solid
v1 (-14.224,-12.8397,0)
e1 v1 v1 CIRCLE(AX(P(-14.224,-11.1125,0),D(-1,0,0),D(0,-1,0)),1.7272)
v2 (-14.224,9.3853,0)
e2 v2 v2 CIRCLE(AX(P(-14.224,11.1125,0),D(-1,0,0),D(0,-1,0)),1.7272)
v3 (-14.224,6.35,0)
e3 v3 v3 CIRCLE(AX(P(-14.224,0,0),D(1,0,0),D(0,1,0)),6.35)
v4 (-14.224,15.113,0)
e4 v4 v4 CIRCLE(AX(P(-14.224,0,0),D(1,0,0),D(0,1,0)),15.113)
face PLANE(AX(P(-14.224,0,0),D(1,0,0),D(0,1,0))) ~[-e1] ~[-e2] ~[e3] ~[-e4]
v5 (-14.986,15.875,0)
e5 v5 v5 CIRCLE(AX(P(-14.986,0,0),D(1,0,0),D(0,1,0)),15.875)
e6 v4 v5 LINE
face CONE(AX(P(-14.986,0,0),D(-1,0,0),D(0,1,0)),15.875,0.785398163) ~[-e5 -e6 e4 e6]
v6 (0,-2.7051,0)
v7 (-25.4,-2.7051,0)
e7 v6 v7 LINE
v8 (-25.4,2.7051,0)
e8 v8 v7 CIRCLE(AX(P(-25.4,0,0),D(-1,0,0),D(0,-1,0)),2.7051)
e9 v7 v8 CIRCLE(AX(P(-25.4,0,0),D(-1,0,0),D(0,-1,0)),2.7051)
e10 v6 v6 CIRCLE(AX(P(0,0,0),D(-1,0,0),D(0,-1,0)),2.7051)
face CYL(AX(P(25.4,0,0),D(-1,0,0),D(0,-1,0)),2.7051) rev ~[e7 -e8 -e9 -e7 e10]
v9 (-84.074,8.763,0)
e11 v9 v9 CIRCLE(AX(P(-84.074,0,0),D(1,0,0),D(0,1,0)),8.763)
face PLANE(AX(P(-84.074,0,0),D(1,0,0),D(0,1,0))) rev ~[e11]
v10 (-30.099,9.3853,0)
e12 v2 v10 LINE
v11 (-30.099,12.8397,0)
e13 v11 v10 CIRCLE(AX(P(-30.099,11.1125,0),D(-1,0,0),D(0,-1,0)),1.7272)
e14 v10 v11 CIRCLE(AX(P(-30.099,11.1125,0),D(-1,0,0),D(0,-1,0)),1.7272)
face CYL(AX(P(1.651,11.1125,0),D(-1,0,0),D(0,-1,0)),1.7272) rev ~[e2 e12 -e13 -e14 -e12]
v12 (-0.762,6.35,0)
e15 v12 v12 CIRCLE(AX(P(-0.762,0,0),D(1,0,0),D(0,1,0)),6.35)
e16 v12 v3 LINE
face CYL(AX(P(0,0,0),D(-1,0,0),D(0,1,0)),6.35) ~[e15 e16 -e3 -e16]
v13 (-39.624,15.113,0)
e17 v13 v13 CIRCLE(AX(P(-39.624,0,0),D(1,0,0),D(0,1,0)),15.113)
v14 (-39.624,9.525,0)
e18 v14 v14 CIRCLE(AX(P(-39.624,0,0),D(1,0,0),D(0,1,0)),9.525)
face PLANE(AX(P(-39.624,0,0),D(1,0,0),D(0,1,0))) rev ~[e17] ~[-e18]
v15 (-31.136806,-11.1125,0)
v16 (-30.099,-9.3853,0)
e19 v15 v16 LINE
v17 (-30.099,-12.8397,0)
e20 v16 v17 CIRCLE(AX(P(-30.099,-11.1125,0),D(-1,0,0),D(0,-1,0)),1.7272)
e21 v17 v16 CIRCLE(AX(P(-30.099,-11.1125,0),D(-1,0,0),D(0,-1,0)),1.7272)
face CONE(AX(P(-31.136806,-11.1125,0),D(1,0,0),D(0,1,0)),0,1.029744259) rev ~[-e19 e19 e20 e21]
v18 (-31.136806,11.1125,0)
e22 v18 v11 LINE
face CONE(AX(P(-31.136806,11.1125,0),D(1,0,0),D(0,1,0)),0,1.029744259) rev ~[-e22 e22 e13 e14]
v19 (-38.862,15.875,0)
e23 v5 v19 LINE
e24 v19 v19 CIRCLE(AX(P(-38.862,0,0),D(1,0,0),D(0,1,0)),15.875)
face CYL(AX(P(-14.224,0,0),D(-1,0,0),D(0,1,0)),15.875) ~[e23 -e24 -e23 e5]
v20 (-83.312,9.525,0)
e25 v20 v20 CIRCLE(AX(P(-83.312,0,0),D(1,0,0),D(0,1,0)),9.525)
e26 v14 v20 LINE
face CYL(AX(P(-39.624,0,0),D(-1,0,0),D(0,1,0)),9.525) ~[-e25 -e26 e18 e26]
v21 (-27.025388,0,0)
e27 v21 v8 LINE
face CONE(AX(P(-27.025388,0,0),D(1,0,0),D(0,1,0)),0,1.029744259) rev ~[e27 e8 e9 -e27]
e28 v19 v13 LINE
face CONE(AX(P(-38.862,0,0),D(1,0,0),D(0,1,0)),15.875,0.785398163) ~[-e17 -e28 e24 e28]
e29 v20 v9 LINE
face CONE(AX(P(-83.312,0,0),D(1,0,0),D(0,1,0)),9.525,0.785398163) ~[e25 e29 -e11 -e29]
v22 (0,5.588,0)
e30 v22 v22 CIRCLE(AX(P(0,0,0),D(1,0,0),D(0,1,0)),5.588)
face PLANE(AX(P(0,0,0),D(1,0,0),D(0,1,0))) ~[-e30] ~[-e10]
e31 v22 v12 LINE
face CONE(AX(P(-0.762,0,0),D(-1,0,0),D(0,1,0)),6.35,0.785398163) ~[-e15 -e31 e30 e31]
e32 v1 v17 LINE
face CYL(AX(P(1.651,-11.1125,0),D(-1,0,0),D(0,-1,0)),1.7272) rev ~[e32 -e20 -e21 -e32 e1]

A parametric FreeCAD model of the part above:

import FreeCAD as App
import Part
import Sketcher

V = App.Vector
Q = App.Units.Quantity


def edges_at(feature, points):
    """Names of the edges that pass closest to the given points."""
    edges = feature.Shape.Edges
    near = lambda p: min(range(len(edges)), key=lambda i: edges[i].distToShape(Part.Vertex(*p))[0])
    return sorted({f"Edge{near(p) + 1}" for p in points})

doc = App.newDocument("Part")
body = doc.addObject("PartDesign::Body", "Body")

sketch1 = body.newObject("Sketcher::SketchObject", "Sketch")
sketch1.AttachmentSupport = (doc.getObject("XY_Plane"), [""])
sketch1.MapMode = "FlatFace"
sketch1.addGeometry([
    Part.LineSegment(V(-84, 0, 0), V(0, 0, 0)),
    Part.LineSegment(V(0, 0, 0), V(0, 6, 0)),
    Part.LineSegment(V(0, 6, 0), V(-14, 6, 0)),
    Part.LineSegment(V(-14, 6, 0), V(-14, 16, 0)),
    Part.LineSegment(V(-14, 16, 0), V(-40, 16, 0)),
    Part.LineSegment(V(-40, 16, 0), V(-40, 10, 0)),
    Part.LineSegment(V(-40, 10, 0), V(-84, 10, 0)),
    Part.LineSegment(V(-84, 10, 0), V(-84, 0, 0)),
], False)
sketch1.addConstraint([
    Sketcher.Constraint("Coincident", 0, 2, 1, 1),
    Sketcher.Constraint("Coincident", 1, 2, 2, 1),
    Sketcher.Constraint("Coincident", 2, 2, 3, 1),
    Sketcher.Constraint("Coincident", 3, 2, 4, 1),
    Sketcher.Constraint("Coincident", 4, 2, 5, 1),
    Sketcher.Constraint("Coincident", 5, 2, 6, 1),
    Sketcher.Constraint("Coincident", 6, 2, 7, 1),
    Sketcher.Constraint("Coincident", 7, 2, 0, 1),
    Sketcher.Constraint("Horizontal", 0),
    Sketcher.Constraint("Vertical", 1),
    Sketcher.Constraint("Horizontal", 2),
    Sketcher.Constraint("Vertical", 3),
    Sketcher.Constraint("Horizontal", 4),
    Sketcher.Constraint("Vertical", 5),
    Sketcher.Constraint("Horizontal", 6),
    Sketcher.Constraint("Vertical", 7),
    Sketcher.Constraint("Coincident", 0, 2, -1, 1),
    Sketcher.Constraint("Equal", 1, 5),
    Sketcher.Constraint("DistanceX", 4, 2, 4, 1, Q("1 in")),
    Sketcher.Constraint("DistanceX", 0, 1, 0, 2, Q("3.31 in")),
    Sketcher.Constraint("DistanceX", 2, 2, 2, 1, Q("0.56 in")),
    Sketcher.Constraint("DistanceY", 1, 1, 1, 2, Q("0.25 in")),
    Sketcher.Constraint("DistanceY", 3, 1, 3, 2, Q("0.375 in")),
])
revolution = body.newObject("PartDesign::Revolution", "Revolution")
revolution.Profile = sketch1
revolution.ReferenceAxis = (sketch1, ["H_Axis"])
revolution.Angle = 360

sketch2 = body.newObject("Sketcher::SketchObject", "Sketch001")
sketch2.AttachmentSupport = (doc.getObject("YZ_Plane"), [""])
sketch2.MapMode = "FlatFace"
sketch2.addGeometry(Part.Circle(V(0, 0, 0), V(0, 0, 1), 2.7), False)
sketch2.addConstraint([
    Sketcher.Constraint("Coincident", 0, 3, -1, 1),
    Sketcher.Constraint("Diameter", 0, Q("0.213 in")),
])
doc.recompute()
hole = body.newObject("PartDesign::Hole", "Hole")
hole.Profile = sketch2
hole.ThreadType = "None"
hole.Diameter = Q("0.213 in")
hole.DepthType = "Dimension"
hole.Depth = Q("1 in")
hole.DrillPoint = "Angled"
hole.DrillPointAngle = 118

sketch3 = body.newObject("Sketcher::SketchObject", "Sketch002")
sketch3.AttachmentSupport = (doc.getObject("YZ_Plane"), [""])
sketch3.MapMode = "FlatFace"
sketch3.AttachmentOffset = App.Placement(V(0, 0, -0.56 * 25.4), App.Rotation())
sketch3.addGeometry([
    Part.Circle(V(-11.1, 0, 0), V(0, 0, 1), 1.7),
    Part.Circle(V(11.1, 0, 0), V(0, 0, 1), 1.7),
], False)
sketch3.addConstraint([
    Sketcher.Constraint("Equal", 0, 1),
    Sketcher.Constraint("Symmetric", 0, 3, 1, 3, -1, 1),
    Sketcher.Constraint("PointOnObject", 0, 3, -1),
    Sketcher.Constraint("Diameter", 0, Q("0.136 in")),
    Sketcher.Constraint("DistanceX", 0, 3, -1, 1, Q("0.4375 in")),
])
doc.recompute()
hole2 = body.newObject("PartDesign::Hole", "Hole001")
hole2.Profile = sketch3
hole2.ThreadType = "None"
hole2.Diameter = Q("0.136 in")
hole2.DepthType = "Dimension"
hole2.Depth = Q("0.625 in")
hole2.DrillPoint = "Angled"
hole2.DrillPointAngle = 118
doc.recompute()

chamfer = body.newObject("PartDesign::Chamfer", "Chamfer")
chamfer.Base = (hole2, edges_at(hole2, [
    (0, -6.35, 0),
    (-14.224, -15.875, 0),
    (-39.624, -15.875, 0),
    (-84.074, -9.525, 0),
]))
chamfer.Size = Q("0.03 in")

doc.recompute()
